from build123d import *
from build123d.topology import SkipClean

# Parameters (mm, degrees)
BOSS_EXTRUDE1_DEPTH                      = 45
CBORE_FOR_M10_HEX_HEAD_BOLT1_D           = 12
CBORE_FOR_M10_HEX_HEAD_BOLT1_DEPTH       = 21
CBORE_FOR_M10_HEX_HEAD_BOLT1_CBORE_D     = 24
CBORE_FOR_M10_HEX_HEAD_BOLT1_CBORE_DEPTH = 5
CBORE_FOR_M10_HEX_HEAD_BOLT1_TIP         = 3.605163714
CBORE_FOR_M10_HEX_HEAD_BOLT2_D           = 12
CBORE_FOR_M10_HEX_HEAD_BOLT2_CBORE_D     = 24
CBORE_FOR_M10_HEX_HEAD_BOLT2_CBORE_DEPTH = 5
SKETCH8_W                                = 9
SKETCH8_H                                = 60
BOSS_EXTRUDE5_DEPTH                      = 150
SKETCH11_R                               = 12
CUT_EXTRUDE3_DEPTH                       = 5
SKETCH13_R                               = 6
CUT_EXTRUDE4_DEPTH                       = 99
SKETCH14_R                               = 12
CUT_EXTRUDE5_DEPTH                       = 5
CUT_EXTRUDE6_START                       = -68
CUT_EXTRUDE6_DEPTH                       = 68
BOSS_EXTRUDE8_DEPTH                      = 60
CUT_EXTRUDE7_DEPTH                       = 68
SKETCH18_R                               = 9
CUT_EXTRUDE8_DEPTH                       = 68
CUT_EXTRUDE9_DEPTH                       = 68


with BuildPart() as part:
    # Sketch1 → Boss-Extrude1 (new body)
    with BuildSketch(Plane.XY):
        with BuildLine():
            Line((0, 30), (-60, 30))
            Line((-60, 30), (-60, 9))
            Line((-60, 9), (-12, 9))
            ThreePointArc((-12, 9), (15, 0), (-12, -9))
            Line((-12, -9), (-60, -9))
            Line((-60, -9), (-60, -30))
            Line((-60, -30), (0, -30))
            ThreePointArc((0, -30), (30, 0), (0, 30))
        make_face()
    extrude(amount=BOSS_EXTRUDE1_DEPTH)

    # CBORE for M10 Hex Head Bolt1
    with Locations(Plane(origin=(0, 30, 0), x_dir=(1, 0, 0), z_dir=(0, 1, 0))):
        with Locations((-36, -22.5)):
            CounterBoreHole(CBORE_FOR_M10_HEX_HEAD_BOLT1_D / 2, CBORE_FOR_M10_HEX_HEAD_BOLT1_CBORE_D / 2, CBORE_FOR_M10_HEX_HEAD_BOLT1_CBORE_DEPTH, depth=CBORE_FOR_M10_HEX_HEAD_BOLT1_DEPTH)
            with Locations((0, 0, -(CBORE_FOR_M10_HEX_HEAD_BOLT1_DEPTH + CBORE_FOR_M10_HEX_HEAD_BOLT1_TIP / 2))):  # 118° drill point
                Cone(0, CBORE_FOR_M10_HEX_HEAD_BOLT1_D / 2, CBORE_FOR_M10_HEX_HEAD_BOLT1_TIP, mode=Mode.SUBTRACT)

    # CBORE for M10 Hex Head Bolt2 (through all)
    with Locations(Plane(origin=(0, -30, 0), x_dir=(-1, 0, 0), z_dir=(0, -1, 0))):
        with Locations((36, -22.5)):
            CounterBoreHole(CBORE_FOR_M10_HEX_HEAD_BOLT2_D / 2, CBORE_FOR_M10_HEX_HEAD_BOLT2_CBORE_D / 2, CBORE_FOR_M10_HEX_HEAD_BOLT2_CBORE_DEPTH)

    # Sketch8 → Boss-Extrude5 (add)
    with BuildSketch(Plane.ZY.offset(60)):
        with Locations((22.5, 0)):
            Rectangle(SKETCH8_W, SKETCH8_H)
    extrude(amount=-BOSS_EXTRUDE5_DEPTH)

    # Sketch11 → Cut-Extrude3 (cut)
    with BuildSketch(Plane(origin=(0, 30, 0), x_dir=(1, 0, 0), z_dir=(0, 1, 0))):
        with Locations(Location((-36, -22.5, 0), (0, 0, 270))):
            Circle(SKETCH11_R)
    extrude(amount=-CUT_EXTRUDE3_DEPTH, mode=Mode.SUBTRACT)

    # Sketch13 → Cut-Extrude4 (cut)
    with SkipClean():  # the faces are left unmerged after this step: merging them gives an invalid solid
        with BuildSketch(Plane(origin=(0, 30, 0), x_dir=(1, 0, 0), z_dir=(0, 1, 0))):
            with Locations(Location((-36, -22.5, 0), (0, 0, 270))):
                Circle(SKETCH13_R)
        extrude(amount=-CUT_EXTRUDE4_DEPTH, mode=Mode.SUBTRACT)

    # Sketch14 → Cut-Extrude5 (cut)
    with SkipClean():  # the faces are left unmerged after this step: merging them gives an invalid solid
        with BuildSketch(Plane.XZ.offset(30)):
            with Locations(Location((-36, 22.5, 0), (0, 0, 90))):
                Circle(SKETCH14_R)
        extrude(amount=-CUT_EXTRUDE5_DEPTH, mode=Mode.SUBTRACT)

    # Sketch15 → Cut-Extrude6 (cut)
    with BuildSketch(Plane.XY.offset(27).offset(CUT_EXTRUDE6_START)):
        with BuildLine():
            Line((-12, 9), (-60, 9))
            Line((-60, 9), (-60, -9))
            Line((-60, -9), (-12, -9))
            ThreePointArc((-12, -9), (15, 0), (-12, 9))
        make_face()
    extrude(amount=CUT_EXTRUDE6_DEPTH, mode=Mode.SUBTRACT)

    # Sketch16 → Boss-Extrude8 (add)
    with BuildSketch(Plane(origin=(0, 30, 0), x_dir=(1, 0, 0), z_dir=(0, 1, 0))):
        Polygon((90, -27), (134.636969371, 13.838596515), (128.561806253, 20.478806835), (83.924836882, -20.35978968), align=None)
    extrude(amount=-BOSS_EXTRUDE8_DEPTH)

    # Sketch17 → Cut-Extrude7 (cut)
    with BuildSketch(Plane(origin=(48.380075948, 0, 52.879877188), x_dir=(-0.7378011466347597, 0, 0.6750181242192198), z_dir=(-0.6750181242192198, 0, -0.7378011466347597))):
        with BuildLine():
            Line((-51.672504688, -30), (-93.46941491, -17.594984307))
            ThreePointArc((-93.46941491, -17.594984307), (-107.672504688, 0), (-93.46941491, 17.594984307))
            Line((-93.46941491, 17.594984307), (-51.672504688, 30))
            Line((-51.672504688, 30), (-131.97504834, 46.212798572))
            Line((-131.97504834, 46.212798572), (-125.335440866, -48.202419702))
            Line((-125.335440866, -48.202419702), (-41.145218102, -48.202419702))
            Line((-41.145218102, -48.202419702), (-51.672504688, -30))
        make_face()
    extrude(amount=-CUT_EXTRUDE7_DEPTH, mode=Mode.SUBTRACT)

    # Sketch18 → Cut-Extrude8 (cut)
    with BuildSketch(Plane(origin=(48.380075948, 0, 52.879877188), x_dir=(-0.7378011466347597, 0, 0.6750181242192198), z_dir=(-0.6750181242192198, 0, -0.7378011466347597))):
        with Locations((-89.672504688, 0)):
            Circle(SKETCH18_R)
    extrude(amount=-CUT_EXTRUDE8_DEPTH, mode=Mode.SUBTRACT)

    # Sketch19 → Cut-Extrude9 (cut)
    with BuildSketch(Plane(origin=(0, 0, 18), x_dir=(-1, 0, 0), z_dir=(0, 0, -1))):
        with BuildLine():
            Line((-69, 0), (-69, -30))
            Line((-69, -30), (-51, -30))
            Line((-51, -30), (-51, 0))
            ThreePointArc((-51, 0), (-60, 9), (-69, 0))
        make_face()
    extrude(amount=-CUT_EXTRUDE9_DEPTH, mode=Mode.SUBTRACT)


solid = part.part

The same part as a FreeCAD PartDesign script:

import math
import FreeCAD as App
import Part
import Sketcher

V = App.Vector


def add_polygon(sketch, points):
    """Adds a closed chain of lines whose ends are joined by coincident constraints."""
    first, n = sketch.GeometryCount, len(points)
    for a, b in zip(points, points[1:] + points[:1]):
        sketch.addGeometry(Part.LineSegment(App.Vector(*a, 0), App.Vector(*b, 0)), False)
    for i in range(n):
        sketch.addConstraint(Sketcher.Constraint("Coincident", first + i, 2, first + (i + 1) % n, 1))

doc = App.newDocument("Part")
params = doc.addObject("Spreadsheet::Sheet", "Params")
for row, (alias, value) in enumerate([
    ("sketch1_radius", "15 mm"),
    ("sketch1_radius2", "30 mm"),
    ("sketch1_width", "60 mm"),
    ("sketch1_width2", "48 mm"),
    ("pad1_length", "45 mm"),
    ("sketch2_diameter", "12 mm"),
    ("hole_diameter", "12 mm"),
    ("hole_depth", "21 mm"),
    ("hole_cbore_diameter", "24 mm"),
    ("hole_cbore_depth", "5 mm"),
    ("sketch3_diameter", "12 mm"),
    ("hole2_diameter", "12 mm"),
    ("hole2_cbore_diameter", "24 mm"),
    ("hole2_cbore_depth", "5 mm"),
    ("sketch4_width", "60 mm"),
    ("sketch4_height", "9 mm"),
    ("pad2_length", "150 mm"),
    ("sketch5_diameter", "24 mm"),
    ("pocket1_length", "5 mm"),
    ("sketch6_diameter", "12 mm"),
    ("pocket2_length", "99 mm"),
    ("sketch7_diameter", "24 mm"),
    ("pocket3_length", "5 mm"),
    ("sketch8_radius", "15 mm"),
    ("sketch8_width", "48 mm"),
    ("sketch8_height", "18 mm"),
    ("pocket4_length", "68 mm"),
    ("sketch9_length", "9 mm"),
    ("sketch9_length2", "60.5 mm"),
    ("pad3_length", "60 mm"),
    ("sketch10_radius", "18 mm"),
    ("pocket5_length", "68 mm"),
    ("sketch11_diameter", "18 mm"),
    ("pocket6_length", "68 mm"),
    ("sketch12_radius", "9 mm"),
    ("sketch12_height", "30 mm"),
    ("pocket7_length", "68 mm"),
], start=1):
    params.set(f"A{row}", alias)
    params.set(f"B{row}", "=" + value)
    params.setAlias(f"B{row}", alias)

body = doc.addObject("PartDesign::Body", "Body")

# Sketch on XY plane
sketch1 = doc.addObject("Sketcher::SketchObject", "Sketch")
body.addObject(sketch1)
sketch1.AttachmentSupport = (doc.XY_Plane, [""])
sketch1.MapMode = "FlatFace"
sketch1.addGeometry([
    Part.LineSegment(V(0, 30, 0), V(-60, 30, 0)),  # 0
    Part.LineSegment(V(-60, 30, 0), V(-60, 9, 0)),  # 1
    Part.LineSegment(V(-60, 9, 0), V(-12, 9, 0)),  # 2
    Part.ArcOfCircle(Part.Circle(V(0, 0, 0), V(0, 0, 1), 15), math.radians(-143), math.radians(143)),  # 3
    Part.LineSegment(V(-12, -9, 0), V(-60, -9, 0)),  # 4
    Part.LineSegment(V(-60, -9, 0), V(-60, -30, 0)),  # 5
    Part.LineSegment(V(-60, -30, 0), V(0, -30, 0)),  # 6
    Part.ArcOfCircle(Part.Circle(V(0, 0, 0), V(0, 0, 1), 30), math.radians(-90), math.radians(90)),  # 7
], False)
sketch1.addConstraint([
    Sketcher.Constraint("Coincident", 0, 2, 1, 1),
    Sketcher.Constraint("Coincident", 1, 2, 2, 1),
    Sketcher.Constraint("Coincident", 2, 2, 3, 2),
    Sketcher.Constraint("Coincident", 3, 1, 4, 1),
    Sketcher.Constraint("Coincident", 4, 2, 5, 1),
    Sketcher.Constraint("Coincident", 5, 2, 6, 1),
    Sketcher.Constraint("Tangent", 6, 2, 7, 1),
    Sketcher.Constraint("Tangent", 7, 2, 0, 1),
    Sketcher.Constraint("Horizontal", 0),
    Sketcher.Constraint("Vertical", 1),
    Sketcher.Constraint("Horizontal", 2),
    Sketcher.Constraint("Horizontal", 4),
    Sketcher.Constraint("Vertical", 5),
    Sketcher.Constraint("Horizontal", 6),
    Sketcher.Constraint("Coincident", 3, 3, -1, 1),
    Sketcher.Constraint("Coincident", 7, 3, -1, 1),
    Sketcher.Constraint("Symmetric", 1, 2, 4, 2, -1),
    Sketcher.Constraint("Radius", 3, 15.0),
    Sketcher.Constraint("Radius", 7, 30.0),
    Sketcher.Constraint("DistanceX", 0, 2, 0, 1, 60.0),
    Sketcher.Constraint("DistanceX", 2, 1, 2, 2, 48.0),
])
sketch1.setExpression("Constraints[17]", "Params.sketch1_radius")
sketch1.setExpression("Constraints[18]", "Params.sketch1_radius2")
sketch1.setExpression("Constraints[19]", "Params.sketch1_width")
sketch1.setExpression("Constraints[20]", "Params.sketch1_width2")
pad1 = doc.addObject("PartDesign::Pad", "Pad")
body.addObject(pad1)
pad1.Profile = sketch1
pad1.setExpression("Length", "Params.pad1_length")

# Sketch on XZ plane
sketch2 = doc.addObject("Sketcher::SketchObject", "Sketch001")
body.addObject(sketch2)
sketch2.AttachmentSupport = (doc.XZ_Plane, [""])
sketch2.MapMode = "FlatFace"
sketch2.AttachmentOffset = App.Placement(V(0, 0, -30), App.Rotation())
sketch2.addGeometry(Part.Circle(V(-36, 22, 0), V(0, 0, 1), 6), False)
sketch2.addConstraint([
    Sketcher.Constraint("Diameter", 0, 12.0),
    Sketcher.Constraint("DistanceX", 0, 3, -1, 1, 36.0),
    Sketcher.Constraint("DistanceY", -1, 1, 0, 3, 22.5),
])
sketch2.setExpression("Constraints[0]", "Params.sketch2_diameter")
doc.recompute()
hole = doc.addObject("PartDesign::Hole", "Hole")
body.addObject(hole)
hole.Profile = sketch2
hole.ThreadType = "None"
hole.setExpression("Diameter", "Params.hole_diameter")
hole.DepthType = "Dimension"
hole.setExpression("Depth", "Params.hole_depth")
hole.DrillPoint = "Angled"
hole.DrillPointAngle = 118
hole.HoleCutType = "Counterbore"
hole.setExpression("HoleCutDiameter", "Params.hole_cbore_diameter")
hole.setExpression("HoleCutDepth", "Params.hole_cbore_depth")
hole.Reversed = True

# Sketch on XZ plane
sketch3 = doc.addObject("Sketcher::SketchObject", "Sketch002")
body.addObject(sketch3)
sketch3.AttachmentSupport = (doc.XZ_Plane, [""])
sketch3.MapMode = "FlatFace"
sketch3.AttachmentOffset = App.Placement(V(0, 0, 30), App.Rotation())
sketch3.addGeometry(Part.Circle(V(-36, 22, 0), V(0, 0, 1), 6), False)
sketch3.addConstraint([
    Sketcher.Constraint("Diameter", 0, 12.0),
    Sketcher.Constraint("DistanceX", 0, 3, -1, 1, 36.0),
    Sketcher.Constraint("DistanceY", -1, 1, 0, 3, 22.5),
])
sketch3.setExpression("Constraints[0]", "Params.sketch3_diameter")
doc.recompute()
hole2 = doc.addObject("PartDesign::Hole", "Hole001")
body.addObject(hole2)
hole2.Profile = sketch3
hole2.ThreadType = "None"
hole2.setExpression("Diameter", "Params.hole2_diameter")
hole2.DepthType = "ThroughAll"
hole2.HoleCutType = "Counterbore"
hole2.setExpression("HoleCutDiameter", "Params.hole2_cbore_diameter")
hole2.setExpression("HoleCutDepth", "Params.hole2_cbore_depth")

# Sketch on YZ plane
sketch4 = doc.addObject("Sketcher::SketchObject", "Sketch003")
body.addObject(sketch4)
sketch4.AttachmentSupport = (doc.YZ_Plane, [""])
sketch4.MapMode = "FlatFace"
sketch4.AttachmentOffset = App.Placement(V(0, 0, -60), App.Rotation())
add_polygon(sketch4, [(30, 18), (-30, 18), (-30, 27), (30, 27)])  # lines 0-3
sketch4.addConstraint([
    Sketcher.Constraint("Horizontal", 0),
    Sketcher.Constraint("Vertical", 1),
    Sketcher.Constraint("Horizontal", 2),
    Sketcher.Constraint("Vertical", 3),
    Sketcher.Constraint("DistanceX", 0, 2, 0, 1, 60.0),
    Sketcher.Constraint("DistanceY", 1, 1, 1, 2, 9.0),
    Sketcher.Constraint("DistanceX", 0, 2, -1, 1, 30.0),
    Sketcher.Constraint("DistanceY", -1, 1, 0, 2, 18.0),
])
sketch4.setExpression("Constraints[8]", "Params.sketch4_width")
sketch4.setExpression("Constraints[9]", "Params.sketch4_height")
pad2 = doc.addObject("PartDesign::Pad", "Pad001")
body.addObject(pad2)
pad2.Profile = sketch4
pad2.setExpression("Length", "Params.pad2_length")

# Sketch on XZ plane
sketch5 = doc.addObject("Sketcher::SketchObject", "Sketch004")
body.addObject(sketch5)
sketch5.AttachmentSupport = (doc.XZ_Plane, [""])
sketch5.MapMode = "FlatFace"
sketch5.AttachmentOffset = App.Placement(V(0, 0, -30), App.Rotation())
sketch5.addGeometry(Part.Circle(V(-36, 22, 0), V(0, 0, 1), 12), False)
sketch5.addConstraint([
    Sketcher.Constraint("Diameter", 0, 24.0),
    Sketcher.Constraint("DistanceX", 0, 3, -1, 1, 36.0),
    Sketcher.Constraint("DistanceY", -1, 1, 0, 3, 22.5),
])
sketch5.setExpression("Constraints[0]", "Params.sketch5_diameter")
pocket1 = doc.addObject("PartDesign::Pocket", "Pocket")
body.addObject(pocket1)
pocket1.Profile = sketch5
pocket1.setExpression("Length", "Params.pocket1_length")
pocket1.Reversed = True

# Sketch on XZ plane
sketch6 = doc.addObject("Sketcher::SketchObject", "Sketch005")
body.addObject(sketch6)
sketch6.AttachmentSupport = (doc.XZ_Plane, [""])
sketch6.MapMode = "FlatFace"
sketch6.AttachmentOffset = App.Placement(V(0, 0, -30), App.Rotation())
sketch6.addGeometry(Part.Circle(V(-36, 22, 0), V(0, 0, 1), 6), False)
sketch6.addConstraint([
    Sketcher.Constraint("Diameter", 0, 12.0),
    Sketcher.Constraint("DistanceX", 0, 3, -1, 1, 36.0),
    Sketcher.Constraint("DistanceY", -1, 1, 0, 3, 22.5),
])
sketch6.setExpression("Constraints[0]", "Params.sketch6_diameter")
pocket2 = doc.addObject("PartDesign::Pocket", "Pocket001")
body.addObject(pocket2)
pocket2.Profile = sketch6
pocket2.setExpression("Length", "Params.pocket2_length")
pocket2.Reversed = True

# Sketch on XZ plane
sketch7 = doc.addObject("Sketcher::SketchObject", "Sketch006")
body.addObject(sketch7)
sketch7.AttachmentSupport = (doc.XZ_Plane, [""])
sketch7.MapMode = "FlatFace"
sketch7.AttachmentOffset = App.Placement(V(0, 0, 30), App.Rotation())
sketch7.addGeometry(Part.Circle(V(-36, 22, 0), V(0, 0, 1), 12), False)
sketch7.addConstraint([
    Sketcher.Constraint("Diameter", 0, 24.0),
    Sketcher.Constraint("DistanceX", 0, 3, -1, 1, 36.0),
    Sketcher.Constraint("DistanceY", -1, 1, 0, 3, 22.5),
])
sketch7.setExpression("Constraints[0]", "Params.sketch7_diameter")
pocket3 = doc.addObject("PartDesign::Pocket", "Pocket002")
body.addObject(pocket3)
pocket3.Profile = sketch7
pocket3.setExpression("Length", "Params.pocket3_length")

# Sketch on XY plane
sketch8 = doc.addObject("Sketcher::SketchObject", "Sketch007")
body.addObject(sketch8)
sketch8.AttachmentSupport = (doc.XY_Plane, [""])
sketch8.MapMode = "FlatFace"
sketch8.AttachmentOffset = App.Placement(V(0, 0, -41), App.Rotation())
sketch8.addGeometry([
    Part.LineSegment(V(-12, 9, 0), V(-60, 9, 0)),
    Part.LineSegment(V(-60, 9, 0), V(-60, -9, 0)),
    Part.LineSegment(V(-60, -9, 0), V(-12, -9, 0)),
    Part.ArcOfCircle(Part.Circle(V(0, 0, 0), V(0, 0, 1), 15), math.radians(-143), math.radians(143)),
], False)
sketch8.addConstraint([
    Sketcher.Constraint("Coincident", 0, 2, 1, 1),
    Sketcher.Constraint("Coincident", 1, 2, 2, 1),
    Sketcher.Constraint("Coincident", 2, 2, 3, 1),
    Sketcher.Constraint("Coincident", 3, 2, 0, 1),
    Sketcher.Constraint("Horizontal", 0),
    Sketcher.Constraint("Vertical", 1),
    Sketcher.Constraint("Horizontal", 2),
    Sketcher.Constraint("Coincident", 3, 3, -1, 1),
    Sketcher.Constraint("Vertical", 2, 2, 3, 2),
    Sketcher.Constraint("Radius", 3, 15.0),
    Sketcher.Constraint("DistanceX", 0, 2, 0, 1, 48.0),
    Sketcher.Constraint("DistanceY", 1, 2, 1, 1, 18.0),
])
sketch8.setExpression("Constraints[9]", "Params.sketch8_radius")
sketch8.setExpression("Constraints[10]", "Params.sketch8_width")
sketch8.setExpression("Constraints[11]", "Params.sketch8_height")
pocket4 = doc.addObject("PartDesign::Pocket", "Pocket003")
body.addObject(pocket4)
pocket4.Profile = sketch8
pocket4.setExpression("Length", "Params.pocket4_length")
pocket4.Reversed = True

# Sketch on XZ plane
sketch9 = doc.addObject("Sketcher::SketchObject", "Sketch008")
body.addObject(sketch9)
sketch9.AttachmentSupport = (doc.XZ_Plane, [""])
sketch9.MapMode = "FlatFace"
sketch9.AttachmentOffset = App.Placement(V(0, 0, -30), App.Rotation())
add_polygon(sketch9, [(90, 27), (135, -14), (129, -20), (84, 20)])  # lines 0-3
sketch9.addConstraint([
    Sketcher.Constraint("Perpendicular", 0, 1),
    Sketcher.Constraint("Perpendicular", 1, 2),
    Sketcher.Constraint("Perpendicular", 2, 3),
    Sketcher.Constraint("Distance", 1, 9.0),
    Sketcher.Constraint("DistanceX", -1, 1, 3, 2, 90.0),
    Sketcher.Constraint("DistanceY", -1, 1, 3, 2, 27.0),
    Sketcher.Constraint("Distance", 0, 60.5),
    Sketcher.Constraint("DistanceX", -1, 1, 0, 2, 134.636969),
])
sketch9.setExpression("Constraints[7]", "Params.sketch9_length")
sketch9.setExpression("Constraints[10]", "Params.sketch9_length2")
pad3 = doc.addObject("PartDesign::Pad", "Pad002")
body.addObject(pad3)
pad3.Profile = sketch9
pad3.setExpression("Length", "Params.pad3_length")

# Sketch on an angled plane
sketch10 = doc.addObject("Sketcher::SketchObject", "Sketch009")
body.addObject(sketch10)
sketch10.Placement = App.Placement(V(48.380076, 0, 52.879877), App.Rotation(V(-0.737801147, 0, 0.675018124), V(0, 1, 0), V(-0.675018124, 0, -0.737801147), "ZXY"))
sketch10.addGeometry([
    Part.LineSegment(V(-52, -30, 0), V(-93, -18, 0)),  # 0
    Part.ArcOfCircle(Part.Circle(V(-90, 0, 0), V(0, 0, 1), 18), math.radians(102), math.radians(258)),  # 1
    Part.LineSegment(V(-93, 18, 0), V(-52, 30, 0)),  # 2
    Part.LineSegment(V(-52, 30, 0), V(-132, 46, 0)),  # 3
    Part.LineSegment(V(-132, 46, 0), V(-125, -48, 0)),  # 4
    Part.LineSegment(V(-125, -48, 0), V(-41, -48, 0)),  # 5
    Part.LineSegment(V(-41, -48, 0), V(-52, -30, 0)),  # 6
], False)
sketch10.addConstraint([
    Sketcher.Constraint("Coincident", 0, 2, 1, 2),
    Sketcher.Constraint("Coincident", 1, 1, 2, 1),
    Sketcher.Constraint("Coincident", 2, 2, 3, 1),
    Sketcher.Constraint("Coincident", 3, 2, 4, 1),
    Sketcher.Constraint("Coincident", 4, 2, 5, 1),
    Sketcher.Constraint("Coincident", 5, 2, 6, 1),
    Sketcher.Constraint("Coincident", 6, 2, 0, 1),
    Sketcher.Constraint("Horizontal", 5),
    Sketcher.Constraint("Symmetric", 0, 2, 1, 1, -1),
    Sketcher.Constraint("Symmetric", 2, 2, 6, 2, -1),
    Sketcher.Constraint("Radius", 1, 18.0),
    Sketcher.Constraint("DistanceY", -1, 1, 2, 2, 30.0),
    Sketcher.Constraint("DistanceX", 1, 3, 2, 2, 38.0),
    Sketcher.Constraint("DistanceY", -1, 1, 3, 2, 46.212799),
    Sketcher.Constraint("Distance", 3, 81.92285),
    Sketcher.Constraint("Distance", 4, 94.648391),
    Sketcher.Constraint("DistanceX", 5, 1, 5, 2, 84.190223),
    Sketcher.Constraint("DistanceX", 3, 2, -1, 1, 131.975048),
    Sketcher.Constraint("DistanceX", 4, 2, -1, 1, 125.335441),
    Sketcher.Constraint("DistanceX", 0, 2, 1, 3, 3.79691),
])
sketch10.setExpression("Constraints[10]", "Params.sketch10_radius")
pocket5 = doc.addObject("PartDesign::Pocket", "Pocket004")
body.addObject(pocket5)
pocket5.Profile = sketch10
pocket5.setExpression("Length", "Params.pocket5_length")

# Sketch on an angled plane
sketch11 = doc.addObject("Sketcher::SketchObject", "Sketch010")
body.addObject(sketch11)
sketch11.Placement = App.Placement(V(48.380076, 0, 52.879877), App.Rotation(V(-0.737801147, 0, 0.675018124), V(0, 1, 0), V(-0.675018124, 0, -0.737801147), "ZXY"))
sketch11.addGeometry(Part.Circle(V(-90, 0, 0), V(0, 0, 1), 9), False)
sketch11.addConstraint([
    Sketcher.Constraint("PointOnObject", 0, 3, -1),
    Sketcher.Constraint("Diameter", 0, 18.0),
    Sketcher.Constraint("DistanceX", 0, 3, -1, 1, 89.672505),
])
sketch11.setExpression("Constraints[1]", "Params.sketch11_diameter")
pocket6 = doc.addObject("PartDesign::Pocket", "Pocket005")
body.addObject(pocket6)
pocket6.Profile = sketch11
pocket6.setExpression("Length", "Params.pocket6_length")

# Sketch on XY plane
sketch12 = doc.addObject("Sketcher::SketchObject", "Sketch011")
body.addObject(sketch12)
sketch12.AttachmentSupport = (doc.XY_Plane, [""])
sketch12.MapMode = "FlatFace"
sketch12.AttachmentOffset = App.Placement(V(0, 0, 18), App.Rotation())
sketch12.addGeometry([
    Part.LineSegment(V(69, 0, 0), V(69, -30, 0)),
    Part.LineSegment(V(69, -30, 0), V(51, -30, 0)),
    Part.LineSegment(V(51, -30, 0), V(51, 0, 0)),
    Part.ArcOfCircle(Part.Circle(V(60, 0, 0), V(0, 0, 1), 9), math.radians(0), math.radians(180)),
], False)
sketch12.addConstraint([
    Sketcher.Constraint("Coincident", 0, 2, 1, 1),
    Sketcher.Constraint("Coincident", 1, 2, 2, 1),
    Sketcher.Constraint("Tangent", 2, 2, 3, 2),
    Sketcher.Constraint("Tangent", 3, 1, 0, 1),
    Sketcher.Constraint("Vertical", 0),
    Sketcher.Constraint("Horizontal", 1),
    Sketcher.Constraint("Vertical", 2),
    Sketcher.Constraint("PointOnObject", 3, 3, -1),
    Sketcher.Constraint("Radius", 3, 9.0),
    Sketcher.Constraint("DistanceY", 0, 2, 0, 1, 30.0),
    Sketcher.Constraint("DistanceX", -1, 1, 3, 3, 60.0),
])
sketch12.setExpression("Constraints[8]", "Params.sketch12_radius")
sketch12.setExpression("Constraints[9]", "Params.sketch12_height")
pocket7 = doc.addObject("PartDesign::Pocket", "Pocket006")
body.addObject(pocket7)
pocket7.Profile = sketch12
pocket7.setExpression("Length", "Params.pocket7_length")
pocket7.Reversed = True

doc.recompute()
